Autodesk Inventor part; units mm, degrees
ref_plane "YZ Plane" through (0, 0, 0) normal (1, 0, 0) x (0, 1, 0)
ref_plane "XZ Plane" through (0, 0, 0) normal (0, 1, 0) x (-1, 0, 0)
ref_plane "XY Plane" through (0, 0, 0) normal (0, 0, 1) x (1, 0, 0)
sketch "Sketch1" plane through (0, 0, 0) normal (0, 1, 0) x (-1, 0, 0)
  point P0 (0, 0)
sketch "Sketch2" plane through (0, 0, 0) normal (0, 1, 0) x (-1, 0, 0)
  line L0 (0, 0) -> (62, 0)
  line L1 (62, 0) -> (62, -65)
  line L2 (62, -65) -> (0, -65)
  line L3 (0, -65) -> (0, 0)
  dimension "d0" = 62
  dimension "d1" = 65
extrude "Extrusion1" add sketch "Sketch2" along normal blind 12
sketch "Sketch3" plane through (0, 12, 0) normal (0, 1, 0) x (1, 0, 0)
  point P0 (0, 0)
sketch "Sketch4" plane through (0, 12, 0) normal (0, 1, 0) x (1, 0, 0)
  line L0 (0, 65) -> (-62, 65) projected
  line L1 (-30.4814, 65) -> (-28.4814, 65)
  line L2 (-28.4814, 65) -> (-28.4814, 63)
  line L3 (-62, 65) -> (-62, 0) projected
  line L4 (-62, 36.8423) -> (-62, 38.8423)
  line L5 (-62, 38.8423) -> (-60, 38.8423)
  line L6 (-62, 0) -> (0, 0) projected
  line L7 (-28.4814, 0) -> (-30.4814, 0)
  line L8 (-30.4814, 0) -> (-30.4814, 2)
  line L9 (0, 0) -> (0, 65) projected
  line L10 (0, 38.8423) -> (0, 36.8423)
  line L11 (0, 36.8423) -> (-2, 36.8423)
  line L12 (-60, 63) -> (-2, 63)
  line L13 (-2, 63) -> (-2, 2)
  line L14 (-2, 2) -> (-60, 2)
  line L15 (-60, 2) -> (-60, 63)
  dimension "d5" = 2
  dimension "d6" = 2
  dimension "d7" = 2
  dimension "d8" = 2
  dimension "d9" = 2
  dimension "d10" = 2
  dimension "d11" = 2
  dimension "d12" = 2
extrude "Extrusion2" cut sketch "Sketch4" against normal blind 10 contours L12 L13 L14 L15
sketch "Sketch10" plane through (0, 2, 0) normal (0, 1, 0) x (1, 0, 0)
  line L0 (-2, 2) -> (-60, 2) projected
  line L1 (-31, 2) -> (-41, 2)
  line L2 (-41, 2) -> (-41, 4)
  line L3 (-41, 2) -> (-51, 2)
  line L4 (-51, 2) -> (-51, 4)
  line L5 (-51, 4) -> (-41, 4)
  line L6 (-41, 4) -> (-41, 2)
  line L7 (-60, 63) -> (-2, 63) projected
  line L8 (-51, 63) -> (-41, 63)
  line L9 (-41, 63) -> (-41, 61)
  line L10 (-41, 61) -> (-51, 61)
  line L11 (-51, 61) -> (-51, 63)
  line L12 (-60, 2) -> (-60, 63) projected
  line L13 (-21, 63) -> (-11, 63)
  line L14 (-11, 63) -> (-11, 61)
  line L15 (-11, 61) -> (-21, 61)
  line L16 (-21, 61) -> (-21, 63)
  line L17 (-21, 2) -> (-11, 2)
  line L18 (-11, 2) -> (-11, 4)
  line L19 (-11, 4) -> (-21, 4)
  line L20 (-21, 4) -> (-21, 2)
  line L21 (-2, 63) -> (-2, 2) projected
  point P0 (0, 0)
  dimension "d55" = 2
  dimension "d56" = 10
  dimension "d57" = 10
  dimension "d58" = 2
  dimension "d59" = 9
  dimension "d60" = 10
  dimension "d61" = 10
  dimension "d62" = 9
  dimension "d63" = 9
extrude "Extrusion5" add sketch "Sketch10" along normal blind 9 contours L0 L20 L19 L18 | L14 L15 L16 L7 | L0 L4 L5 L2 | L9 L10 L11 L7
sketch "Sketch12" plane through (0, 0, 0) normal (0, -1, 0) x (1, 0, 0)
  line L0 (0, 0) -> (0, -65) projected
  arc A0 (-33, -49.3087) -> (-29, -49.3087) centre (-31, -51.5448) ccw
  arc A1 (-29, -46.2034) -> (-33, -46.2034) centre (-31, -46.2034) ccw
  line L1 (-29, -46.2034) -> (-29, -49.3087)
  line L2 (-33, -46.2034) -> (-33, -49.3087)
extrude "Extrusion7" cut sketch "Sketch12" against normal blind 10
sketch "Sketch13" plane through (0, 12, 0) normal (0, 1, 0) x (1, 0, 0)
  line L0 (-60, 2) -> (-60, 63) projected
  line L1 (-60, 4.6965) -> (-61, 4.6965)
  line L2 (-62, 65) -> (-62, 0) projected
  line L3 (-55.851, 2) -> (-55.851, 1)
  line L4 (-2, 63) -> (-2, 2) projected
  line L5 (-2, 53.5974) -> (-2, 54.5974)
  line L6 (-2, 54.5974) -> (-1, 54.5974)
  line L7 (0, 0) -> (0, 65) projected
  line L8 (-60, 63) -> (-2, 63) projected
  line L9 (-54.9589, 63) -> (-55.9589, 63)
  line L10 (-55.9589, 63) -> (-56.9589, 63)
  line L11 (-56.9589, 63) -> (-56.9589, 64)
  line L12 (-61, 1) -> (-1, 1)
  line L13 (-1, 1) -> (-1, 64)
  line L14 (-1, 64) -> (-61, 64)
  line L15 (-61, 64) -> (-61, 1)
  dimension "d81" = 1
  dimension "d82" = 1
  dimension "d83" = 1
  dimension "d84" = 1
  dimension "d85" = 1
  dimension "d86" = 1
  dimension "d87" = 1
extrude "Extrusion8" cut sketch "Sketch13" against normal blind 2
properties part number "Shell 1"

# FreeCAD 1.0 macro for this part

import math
import FreeCAD as App
import Part
import Sketcher
from FreeCAD import Vector


def add_polygon(sketch, points):
    """Adds a closed chain of lines whose ends are joined by coincident constraints."""
    first, n = sketch.GeometryCount, len(points)
    for a, b in zip(points, points[1:] + points[:1]):
        sketch.addGeometry(Part.LineSegment(App.Vector(*a, 0), App.Vector(*b, 0)), False)
    for i in range(n):
        sketch.addConstraint(Sketcher.Constraint("Coincident", first + i, 2, first + (i + 1) % n, 1))

doc = App.newDocument("Part")
body = doc.addObject("PartDesign::Body", "Body")

# Sketch on XZ plane
sketch1 = body.newObject("Sketcher::SketchObject", "Sketch")
sketch1.AttachmentSupport = (doc.getObject("XZ_Plane"), [""])
sketch1.MapMode = "FlatFace"
add_polygon(sketch1, [(-62, 0), (0, 0), (0, -65), (-62, -65)])  # lines 0-3
sketch1.addConstraint([
    Sketcher.Constraint("Horizontal", 0),
    Sketcher.Constraint("Vertical", 1),
    Sketcher.Constraint("Horizontal", 2),
    Sketcher.Constraint("Vertical", 3),
    Sketcher.Constraint("Coincident", 0, 2, -1, 1),
    Sketcher.Constraint("DistanceX", 0, 1, 0, 2, 62.0),
    Sketcher.Constraint("DistanceY", 1, 2, 1, 1, 65.0),
])
pad1 = body.newObject("PartDesign::Pad", "Pad")
pad1.Profile = sketch1
pad1.Length = 12
pad1.Reversed = True

# Sketch on XZ plane
sketch2 = body.newObject("Sketcher::SketchObject", "Sketch001")
sketch2.AttachmentSupport = (doc.getObject("XZ_Plane"), [""])
sketch2.MapMode = "FlatFace"
sketch2.AttachmentOffset = App.Placement(Vector(0, 0, -12), App.Rotation())
add_polygon(sketch2, [(-2, -63), (-60, -63), (-60, -2), (-2, -2)])  # lines 0-3
sketch2.addConstraint([
    Sketcher.Constraint("Horizontal", 0),
    Sketcher.Constraint("Vertical", 1),
    Sketcher.Constraint("Horizontal", 2),
    Sketcher.Constraint("Vertical", 3),
    Sketcher.Constraint("DistanceY", 1, 2, -1, 1, 2.0),
    Sketcher.Constraint("DistanceX", 2, 2, -1, 1, 2.0),
    Sketcher.Constraint("DistanceX", 0, 2, 0, 1, 58.0),
    Sketcher.Constraint("DistanceY", 1, 1, 1, 2, 61.0),
])
pocket1 = body.newObject("PartDesign::Pocket", "Pocket")
pocket1.Profile = sketch2
pocket1.Length = 10
pocket1.Reversed = True

# Sketch on XZ plane
sketch3 = body.newObject("Sketcher::SketchObject", "Sketch002")
sketch3.AttachmentSupport = (doc.getObject("XZ_Plane"), [""])
sketch3.MapMode = "FlatFace"
sketch3.AttachmentOffset = App.Placement(Vector(0, 0, -2), App.Rotation())
add_polygon(sketch3, [(-21, -2), (-11, -2), (-11, -4), (-21, -4)])  # lines 0-3
add_polygon(sketch3, [(-11, -61), (-11, -63), (-21, -63), (-21, -61)])  # lines 4-7
add_polygon(sketch3, [(-51, -2), (-41, -2), (-41, -4), (-51, -4)])  # lines 8-11
add_polygon(sketch3, [(-41, -61), (-41, -63), (-51, -63), (-51, -61)])  # lines 12-15
sketch3.addConstraint([
    Sketcher.Constraint("Horizontal", 0),
    Sketcher.Constraint("Vertical", 1),
    Sketcher.Constraint("Horizontal", 2),
    Sketcher.Constraint("Vertical", 3),
    Sketcher.Constraint("Vertical", 4),
    Sketcher.Constraint("Horizontal", 5),
    Sketcher.Constraint("Vertical", 6),
    Sketcher.Constraint("Horizontal", 7),
    Sketcher.Constraint("Horizontal", 8),
    Sketcher.Constraint("Vertical", 9),
    Sketcher.Constraint("Horizontal", 10),
    Sketcher.Constraint("Vertical", 11),
    Sketcher.Constraint("Vertical", 12),
    Sketcher.Constraint("Horizontal", 13),
    Sketcher.Constraint("Vertical", 14),
    Sketcher.Constraint("Horizontal", 15),
    Sketcher.Constraint("Horizontal", 3, 2, 8, 2),
    Sketcher.Constraint("Horizontal", 2, 2, 9, 2),
    Sketcher.Constraint("Horizontal", 5, 2, 12, 2),
    Sketcher.Constraint("Horizontal", 7, 2, 14, 2),
    Sketcher.Constraint("Vertical", 1, 2, 4, 2),
    Sketcher.Constraint("Vertical", 3, 2, 5, 2),
    Sketcher.Constraint("Vertical", 9, 2, 12, 2),
    Sketcher.Constraint("Vertical", 11, 2, 13, 2),
    Sketcher.Constraint("Equal", 7, 8),
    Sketcher.Constraint("Equal", 3, 4),
    Sketcher.Constraint("DistanceX", 0, 1, 0, 2, 10.0),
    Sketcher.Constraint("DistanceY", 1, 2, 1, 1, 2.0),
    Sketcher.Constraint("DistanceY", 0, 2, -1, 1, 2.0),
    Sketcher.Constraint("DistanceX", 0, 2, -1, 1, 11.0),
    Sketcher.Constraint("DistanceY", 4, 2, -1, 1, 63.0),
    Sketcher.Constraint("DistanceX", 8, 2, -1, 1, 41.0),
])
pad2 = body.newObject("PartDesign::Pad", "Pad001")
pad2.Profile = sketch3
pad2.Length = 9
pad2.Reversed = True

# Sketch on XZ plane
sketch4 = body.newObject("Sketcher::SketchObject", "Sketch003")
sketch4.AttachmentSupport = (doc.getObject("XZ_Plane"), [""])
sketch4.MapMode = "FlatFace"
sketch4.addGeometry([
    Part.LineSegment(Vector(-33, -46.2, 0), Vector(-33, -49.3, 0)),
    Part.ArcOfCircle(Part.Circle(Vector(-31, -51.5, 0), Vector(0, 0, 1), 3), math.radians(132), math.radians(408)),
    Part.LineSegment(Vector(-29, -49.3, 0), Vector(-29, -46.2, 0)),
    Part.ArcOfCircle(Part.Circle(Vector(-31, -46.2, 0), Vector(0, 0, 1), 2), math.radians(0), math.radians(180)),
], False)
sketch4.addConstraint([
    Sketcher.Constraint("Coincident", 0, 2, 1, 1),
    Sketcher.Constraint("Coincident", 1, 2, 2, 1),
    Sketcher.Constraint("Tangent", 2, 2, 3, 1),
    Sketcher.Constraint("Tangent", 3, 2, 0, 1),
    Sketcher.Constraint("Vertical", 0),
    Sketcher.Constraint("Vertical", 2),
    Sketcher.Constraint("Horizontal", 0, 2, 1, 2),
    Sketcher.Constraint("Radius", 1, 3.0),
    Sketcher.Constraint("Radius", 3, 2.0),
    Sketcher.Constraint("DistanceX", 1, 3, -1, 1, 31.0),
    Sketcher.Constraint("DistanceY", 0, 2, 0, 1, 3.1053),
    Sketcher.Constraint("DistanceY", 1, 3, -1, 1, 51.5448),
])
pocket2 = body.newObject("PartDesign::Pocket", "Pocket001")
pocket2.Profile = sketch4
pocket2.Length = 10

# Sketch on XZ plane
sketch5 = body.newObject("Sketcher::SketchObject", "Sketch004")
sketch5.AttachmentSupport = (doc.getObject("XZ_Plane"), [""])
sketch5.MapMode = "FlatFace"
sketch5.AttachmentOffset = App.Placement(Vector(0, 0, -12), App.Rotation())
add_polygon(sketch5, [(-61, -64), (-61, -1), (-1, -1), (-1, -64)])  # lines 0-3
sketch5.addConstraint([
    Sketcher.Constraint("Vertical", 0),
    Sketcher.Constraint("Horizontal", 1),
    Sketcher.Constraint("Vertical", 2),
    Sketcher.Constraint("Horizontal", 3),
    Sketcher.Constraint("DistanceY", 0, 2, -1, 1, 1.0),
    Sketcher.Constraint("DistanceX", 1, 2, -1, 1, 1.0),
    Sketcher.Constraint("DistanceX", 1, 1, 1, 2, 60.0),
    Sketcher.Constraint("DistanceY", 0, 1, 0, 2, 63.0),
])
pocket3 = body.newObject("PartDesign::Pocket", "Pocket002")
pocket3.Profile = sketch5
pocket3.Length = 2
pocket3.Reversed = True

doc.recompute()
